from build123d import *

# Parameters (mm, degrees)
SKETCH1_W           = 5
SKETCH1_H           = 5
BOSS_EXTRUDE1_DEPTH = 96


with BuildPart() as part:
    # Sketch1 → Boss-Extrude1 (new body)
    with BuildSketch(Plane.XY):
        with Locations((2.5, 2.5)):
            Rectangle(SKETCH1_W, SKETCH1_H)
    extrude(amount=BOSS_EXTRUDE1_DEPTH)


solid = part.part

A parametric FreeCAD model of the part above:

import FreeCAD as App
import Part
import Sketcher
from FreeCAD import Vector
Q = App.Units.Quantity

doc = App.newDocument("Part")
body = doc.addObject("PartDesign::Body", "Body")

sketch1 = body.newObject("Sketcher::SketchObject", "Sketch")
sketch1.AttachmentSupport = (doc.getObject("XY_Plane"), [""])
sketch1.MapMode = "FlatFace"
sketch1.addGeometry(Part.LineSegment(Vector(0, 5, 0), Vector(0, 0, 0)), False)
sketch1.addGeometry(Part.LineSegment(Vector(0, 0, 0), Vector(5, 0, 0)), False)
sketch1.addGeometry(Part.LineSegment(Vector(5, 0, 0), Vector(5, 5, 0)), False)
sketch1.addGeometry(Part.LineSegment(Vector(5, 5, 0), Vector(0, 5, 0)), False)
sketch1.addConstraint(Sketcher.Constraint("Coincident", 0, 2, 1, 1))
sketch1.addConstraint(Sketcher.Constraint("Coincident", 1, 2, 2, 1))
sketch1.addConstraint(Sketcher.Constraint("Coincident", 2, 2, 3, 1))
sketch1.addConstraint(Sketcher.Constraint("Coincident", 3, 2, 0, 1))
sketch1.addConstraint(Sketcher.Constraint("Vertical", 0))
sketch1.addConstraint(Sketcher.Constraint("Horizontal", 1))
sketch1.addConstraint(Sketcher.Constraint("Vertical", 2))
sketch1.addConstraint(Sketcher.Constraint("Horizontal", 3))
sketch1.addConstraint(Sketcher.Constraint("Coincident", 0, 2, -1, 1))
sketch1.addConstraint(Sketcher.Constraint("Equal", 3, 0))
sketch1.addConstraint(Sketcher.Constraint("DistanceX", 1, 1, 1, 2, Q("5 mm")))
pad1 = body.newObject("PartDesign::Pad", "Pad")
pad1.Profile = sketch1
pad1.Length = 96

doc.recompute()
